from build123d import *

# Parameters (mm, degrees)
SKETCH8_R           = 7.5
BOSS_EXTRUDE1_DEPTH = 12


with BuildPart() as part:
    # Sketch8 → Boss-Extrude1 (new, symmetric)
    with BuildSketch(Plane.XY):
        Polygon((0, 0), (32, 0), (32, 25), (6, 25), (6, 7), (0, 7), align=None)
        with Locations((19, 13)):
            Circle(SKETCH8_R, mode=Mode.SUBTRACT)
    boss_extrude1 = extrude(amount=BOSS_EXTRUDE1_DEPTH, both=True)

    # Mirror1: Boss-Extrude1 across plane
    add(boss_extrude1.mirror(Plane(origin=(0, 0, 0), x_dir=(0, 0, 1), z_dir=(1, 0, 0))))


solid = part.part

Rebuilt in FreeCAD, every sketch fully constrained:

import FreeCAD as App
import Part
import Sketcher

V = App.Vector

doc = App.newDocument("Part")
body = doc.addObject("PartDesign::Body", "Body")

# Sketch on XY plane
sketch1 = doc.addObject("Sketcher::SketchObject", "Sketch")
body.addObject(sketch1)
sketch1.AttachmentSupport = (doc.XY_Plane, [""])
sketch1.MapMode = "FlatFace"
sketch1.addGeometry([
    Part.LineSegment(V(0, 0, 0), V(32, 0, 0)),  # 0
    Part.LineSegment(V(32, 0, 0), V(32, 25, 0)),  # 1
    Part.LineSegment(V(32, 25, 0), V(6, 25, 0)),  # 2
    Part.LineSegment(V(6, 25, 0), V(6, 7, 0)),  # 3
    Part.LineSegment(V(6, 7, 0), V(0, 7, 0)),  # 4
    Part.LineSegment(V(0, 7, 0), V(0, 0, 0)),  # 5
    Part.Circle(V(19, 13, 0), V(0, 0, 1), 8),  # 6
], False)
sketch1.addConstraint([
    Sketcher.Constraint("Coincident", 0, 2, 1, 1),
    Sketcher.Constraint("Coincident", 1, 2, 2, 1),
    Sketcher.Constraint("Coincident", 2, 2, 3, 1),
    Sketcher.Constraint("Coincident", 3, 2, 4, 1),
    Sketcher.Constraint("Coincident", 4, 2, 5, 1),
    Sketcher.Constraint("Coincident", 5, 2, 0, 1),
    Sketcher.Constraint("Horizontal", 0),
    Sketcher.Constraint("Vertical", 1),
    Sketcher.Constraint("Horizontal", 2),
    Sketcher.Constraint("Vertical", 3),
    Sketcher.Constraint("Horizontal", 4),
    Sketcher.Constraint("Vertical", 5),
    Sketcher.Constraint("Coincident", 5, 2, -1, 1),
    Sketcher.Constraint("Diameter", 6, 15.0),
    Sketcher.Constraint("DistanceX", 0, 1, 0, 2, 32.0),
    Sketcher.Constraint("DistanceX", 2, 2, 2, 1, 26.0),
    Sketcher.Constraint("DistanceY", 1, 1, 1, 2, 25.0),
    Sketcher.Constraint("DistanceY", 3, 2, 3, 1, 18.0),
    Sketcher.Constraint("DistanceX", -1, 1, 6, 3, 19.0),
    Sketcher.Constraint("DistanceY", -1, 1, 6, 3, 13.0),
])
pad1 = doc.addObject("PartDesign::Pad", "Pad")
body.addObject(pad1)
pad1.Profile = sketch1
pad1.Length = 24
pad1.Midplane = True
doc.recompute()

mirrored = doc.addObject("PartDesign::Mirrored", "Mirrored")
body.addObject(mirrored)
mirrored.Originals = [pad1]
mirrored.MirrorPlane = (doc.YZ_Plane, [""])
body.Tip = mirrored

doc.recompute()
